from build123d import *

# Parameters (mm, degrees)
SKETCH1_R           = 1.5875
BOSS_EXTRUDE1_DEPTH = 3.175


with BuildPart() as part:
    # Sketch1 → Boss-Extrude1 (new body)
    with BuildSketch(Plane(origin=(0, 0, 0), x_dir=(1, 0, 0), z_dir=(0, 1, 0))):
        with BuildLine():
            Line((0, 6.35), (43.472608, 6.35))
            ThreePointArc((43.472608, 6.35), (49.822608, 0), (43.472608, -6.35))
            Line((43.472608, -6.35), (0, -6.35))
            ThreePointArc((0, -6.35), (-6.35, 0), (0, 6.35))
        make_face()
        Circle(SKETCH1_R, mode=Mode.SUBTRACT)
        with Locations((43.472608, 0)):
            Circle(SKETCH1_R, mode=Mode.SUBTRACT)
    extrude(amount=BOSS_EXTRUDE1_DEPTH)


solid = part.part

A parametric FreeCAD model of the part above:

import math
import FreeCAD as App
import Part
import Sketcher
Q = App.Units.Quantity

doc = App.newDocument("Part")
body = doc.addObject("PartDesign::Body", "Body")

# Sketch on XZ plane
sketch1 = doc.addObject("Sketcher::SketchObject", "Sketch")
body.addObject(sketch1)
sketch1.AttachmentSupport = (doc.XZ_Plane, [""])
sketch1.MapMode = "FlatFace"
sketch1.addGeometry([
    Part.LineSegment(App.Vector(43.5, -6.3, 0), App.Vector(0, -6.3, 0)),  # 0
    Part.ArcOfCircle(Part.Circle(App.Vector(0, 0, 0), App.Vector(0, 0, 1), 6.3), math.radians(90), math.radians(270)),  # 1
    Part.LineSegment(App.Vector(0, 6.3, 0), App.Vector(43.5, 6.3, 0)),  # 2
    Part.ArcOfCircle(Part.Circle(App.Vector(43.5, 0, 0), App.Vector(0, 0, 1), 6.3), math.radians(-90), math.radians(90)),  # 3
    Part.Circle(App.Vector(43.5, 0, 0), App.Vector(0, 0, 1), 1.6),  # 4
    Part.Circle(App.Vector(0, 0, 0), App.Vector(0, 0, 1), 1.6),  # 5
], False)
sketch1.addConstraint([
    Sketcher.Constraint("Tangent", 0, 2, 1, 2),
    Sketcher.Constraint("Tangent", 1, 1, 2, 1),
    Sketcher.Constraint("Tangent", 2, 2, 3, 2),
    Sketcher.Constraint("Tangent", 3, 1, 0, 1),
    Sketcher.Constraint("Horizontal", 0),
    Sketcher.Constraint("Horizontal", 2),
    Sketcher.Constraint("Coincident", 1, 3, -1, 1),
    Sketcher.Constraint("Coincident", 5, 3, -1, 1),
    Sketcher.Constraint("Coincident", 4, 3, 3, 3),
    Sketcher.Constraint("Equal", 4, 5),
    Sketcher.Constraint("Radius", 1, Q("0.25 in")),
    Sketcher.Constraint("Diameter", 4, Q("0.125 in")),
    Sketcher.Constraint("DistanceX", 0, 2, 0, 1, Q("43.472608 mm")),
])
pad1 = doc.addObject("PartDesign::Pad", "Pad")
body.addObject(pad1)
pad1.Profile = sketch1
pad1.Length = Q("0.125 in")
pad1.Reversed = True

doc.recompute()
